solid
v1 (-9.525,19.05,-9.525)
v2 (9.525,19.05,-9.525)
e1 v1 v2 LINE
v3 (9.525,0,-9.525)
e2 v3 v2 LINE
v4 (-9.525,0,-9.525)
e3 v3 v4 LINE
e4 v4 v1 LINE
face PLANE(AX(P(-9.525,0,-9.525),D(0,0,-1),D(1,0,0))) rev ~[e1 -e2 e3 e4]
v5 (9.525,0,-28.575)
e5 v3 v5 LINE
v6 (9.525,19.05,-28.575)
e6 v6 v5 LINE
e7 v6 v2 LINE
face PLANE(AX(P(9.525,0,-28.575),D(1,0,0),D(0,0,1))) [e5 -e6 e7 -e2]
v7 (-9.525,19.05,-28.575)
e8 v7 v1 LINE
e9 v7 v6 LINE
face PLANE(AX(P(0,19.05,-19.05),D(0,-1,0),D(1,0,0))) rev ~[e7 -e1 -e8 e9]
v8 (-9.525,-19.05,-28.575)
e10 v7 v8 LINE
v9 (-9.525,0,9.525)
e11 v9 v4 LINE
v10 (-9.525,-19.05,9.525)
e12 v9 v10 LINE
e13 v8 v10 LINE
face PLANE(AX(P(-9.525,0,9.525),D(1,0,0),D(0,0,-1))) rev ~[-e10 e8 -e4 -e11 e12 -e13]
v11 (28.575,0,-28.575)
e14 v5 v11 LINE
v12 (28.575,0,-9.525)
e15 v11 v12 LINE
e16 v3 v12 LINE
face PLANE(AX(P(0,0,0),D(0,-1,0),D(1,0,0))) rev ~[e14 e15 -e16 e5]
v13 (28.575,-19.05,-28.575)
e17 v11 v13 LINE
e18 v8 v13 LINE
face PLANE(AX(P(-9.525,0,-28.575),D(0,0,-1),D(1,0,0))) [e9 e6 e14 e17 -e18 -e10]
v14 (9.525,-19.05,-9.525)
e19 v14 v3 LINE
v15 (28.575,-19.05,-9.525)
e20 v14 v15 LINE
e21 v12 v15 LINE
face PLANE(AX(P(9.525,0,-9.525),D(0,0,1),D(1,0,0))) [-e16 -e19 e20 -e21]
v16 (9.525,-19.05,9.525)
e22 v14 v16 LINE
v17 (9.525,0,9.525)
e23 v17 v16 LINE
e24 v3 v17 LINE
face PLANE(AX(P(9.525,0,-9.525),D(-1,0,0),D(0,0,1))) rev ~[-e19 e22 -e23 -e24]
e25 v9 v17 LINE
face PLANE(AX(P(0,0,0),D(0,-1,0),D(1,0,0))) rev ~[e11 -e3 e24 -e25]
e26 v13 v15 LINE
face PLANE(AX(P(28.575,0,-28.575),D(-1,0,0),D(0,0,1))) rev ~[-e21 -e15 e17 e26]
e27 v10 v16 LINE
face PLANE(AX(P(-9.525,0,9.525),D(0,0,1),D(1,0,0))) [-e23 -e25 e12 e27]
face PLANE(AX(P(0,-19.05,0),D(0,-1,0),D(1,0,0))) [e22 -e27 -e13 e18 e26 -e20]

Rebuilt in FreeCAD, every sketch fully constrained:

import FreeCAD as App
import Part
import Sketcher
Q = App.Units.Quantity

doc = App.newDocument("Part")
body = doc.addObject("PartDesign::Body", "Body")

# Sketch on XZ plane
sketch1 = doc.addObject("Sketcher::SketchObject", "Sketch")
body.addObject(sketch1)
sketch1.AttachmentSupport = (doc.XZ_Plane, [""])
sketch1.MapMode = "FlatFace"
sketch1.addGeometry(Part.LineSegment(App.Vector(-9.525, -9.525, 0), App.Vector(-9.525, -28.575, 0)), False)
sketch1.addGeometry(Part.LineSegment(App.Vector(-9.525, -28.575, 0), App.Vector(9.525, -28.575, 0)), False)
sketch1.addGeometry(Part.LineSegment(App.Vector(9.525, -28.575, 0), App.Vector(9.525, -9.525, 0)), False)
sketch1.addGeometry(Part.LineSegment(App.Vector(9.525, -9.525, 0), App.Vector(-9.525, -9.525, 0)), False)
sketch1.addConstraint(Sketcher.Constraint("Coincident", 0, 2, 1, 1))
sketch1.addConstraint(Sketcher.Constraint("Coincident", 1, 2, 2, 1))
sketch1.addConstraint(Sketcher.Constraint("Coincident", 2, 2, 3, 1))
sketch1.addConstraint(Sketcher.Constraint("Coincident", 3, 2, 0, 1))
sketch1.addConstraint(Sketcher.Constraint("Vertical", 0))
sketch1.addConstraint(Sketcher.Constraint("Horizontal", 1))
sketch1.addConstraint(Sketcher.Constraint("Vertical", 2))
sketch1.addConstraint(Sketcher.Constraint("Horizontal", 3))
sketch1.addConstraint(Sketcher.Constraint("Equal", 3, 0))
sketch1.addConstraint(Sketcher.Constraint("DistanceX", 1, 1, 1, 2, Q("0.75 in")))
sketch1.addConstraint(Sketcher.Constraint("DistanceX", 0, 2, -1, 1, Q("0.375 in")))
sketch1.addConstraint(Sketcher.Constraint("DistanceY", 0, 2, -1, 1, Q("1.125 in")))
pad1 = doc.addObject("PartDesign::Pad", "Pad")
body.addObject(pad1)
pad1.Profile = sketch1
pad1.Length = Q("1.5 in")
pad1.Midplane = True

# Sketch on XZ plane
sketch2 = doc.addObject("Sketcher::SketchObject", "Sketch001")
body.addObject(sketch2)
sketch2.AttachmentSupport = (doc.XZ_Plane, [""])
sketch2.MapMode = "FlatFace"
sketch2.addGeometry(Part.LineSegment(App.Vector(-9.525, 9.525, 0), App.Vector(-9.525, -28.575, 0)), False)
sketch2.addGeometry(Part.LineSegment(App.Vector(-9.525, -28.575, 0), App.Vector(28.575, -28.575, 0)), False)
sketch2.addGeometry(Part.LineSegment(App.Vector(28.575, -28.575, 0), App.Vector(28.575, -9.525, 0)), False)
sketch2.addGeometry(Part.LineSegment(App.Vector(28.575, -9.525, 0), App.Vector(9.525, -9.525, 0)), False)
sketch2.addGeometry(Part.LineSegment(App.Vector(9.525, -9.525, 0), App.Vector(9.525, 9.525, 0)), False)
sketch2.addGeometry(Part.LineSegment(App.Vector(9.525, 9.525, 0), App.Vector(-9.525, 9.525, 0)), False)
sketch2.addConstraint(Sketcher.Constraint("Coincident", 0, 2, 1, 1))
sketch2.addConstraint(Sketcher.Constraint("Coincident", 1, 2, 2, 1))
sketch2.addConstraint(Sketcher.Constraint("Coincident", 2, 2, 3, 1))
sketch2.addConstraint(Sketcher.Constraint("Coincident", 3, 2, 4, 1))
sketch2.addConstraint(Sketcher.Constraint("Coincident", 4, 2, 5, 1))
sketch2.addConstraint(Sketcher.Constraint("Coincident", 5, 2, 0, 1))
sketch2.addConstraint(Sketcher.Constraint("Vertical", 0))
sketch2.addConstraint(Sketcher.Constraint("Horizontal", 1))
sketch2.addConstraint(Sketcher.Constraint("Vertical", 2))
sketch2.addConstraint(Sketcher.Constraint("Horizontal", 3))
sketch2.addConstraint(Sketcher.Constraint("Vertical", 4))
sketch2.addConstraint(Sketcher.Constraint("Horizontal", 5))
sketch2.addConstraint(Sketcher.Constraint("Symmetric", 3, 2, 5, 2, -1, 1))
sketch2.addConstraint(Sketcher.Constraint("Equal", 3, 5))
sketch2.addConstraint(Sketcher.Constraint("Equal", 1, 0))
sketch2.addConstraint(Sketcher.Constraint("Equal", 5, 2))
sketch2.addConstraint(Sketcher.Constraint("DistanceX", 1, 1, 1, 2, Q("1.5 in")))
pad2 = doc.addObject("PartDesign::Pad", "Pad001")
body.addObject(pad2)
pad2.Profile = sketch2
pad2.Length = Q("0.75 in")

doc.recompute()
